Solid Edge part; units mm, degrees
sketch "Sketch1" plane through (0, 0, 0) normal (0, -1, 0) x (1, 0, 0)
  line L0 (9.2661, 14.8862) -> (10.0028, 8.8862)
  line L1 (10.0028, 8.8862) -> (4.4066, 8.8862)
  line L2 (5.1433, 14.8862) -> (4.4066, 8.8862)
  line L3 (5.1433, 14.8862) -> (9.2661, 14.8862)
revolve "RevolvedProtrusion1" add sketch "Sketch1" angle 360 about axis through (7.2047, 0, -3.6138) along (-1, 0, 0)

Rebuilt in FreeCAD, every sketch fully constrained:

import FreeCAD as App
import Part
import Sketcher
Q = App.Units.Quantity

doc = App.newDocument("Part")
body = doc.addObject("PartDesign::Body", "Body")

# Sketch on XZ plane
sketch1 = doc.addObject("Sketcher::SketchObject", "Sketch")
body.addObject(sketch1)
sketch1.AttachmentSupport = (doc.XZ_Plane, [""])
sketch1.MapMode = "FlatFace"
sketch1.addGeometry(Part.LineSegment(App.Vector(10, 8.9, 0), App.Vector(9.3, 14.9, 0)), False)
sketch1.addGeometry(Part.LineSegment(App.Vector(9.3, 14.9, 0), App.Vector(5.1, 14.9, 0)), False)
sketch1.addGeometry(Part.LineSegment(App.Vector(5.1, 14.9, 0), App.Vector(4.4, 8.9, 0)), False)
sketch1.addGeometry(Part.LineSegment(App.Vector(4.4, 8.9, 0), App.Vector(10, 8.9, 0)), False)
sketch1.addGeometry(Part.LineSegment(App.Vector(10, -3.6, 0), App.Vector(4.4, -3.6, 0)), True)  # axis
sketch1.addConstraint(Sketcher.Constraint("Coincident", 0, 2, 1, 1))
sketch1.addConstraint(Sketcher.Constraint("Coincident", 1, 2, 2, 1))
sketch1.addConstraint(Sketcher.Constraint("Coincident", 2, 2, 3, 1))
sketch1.addConstraint(Sketcher.Constraint("Coincident", 3, 2, 0, 1))
sketch1.addConstraint(Sketcher.Constraint("Horizontal", 1))
sketch1.addConstraint(Sketcher.Constraint("Horizontal", 3))
sketch1.addConstraint(Sketcher.Constraint("Horizontal", 4))
sketch1.addConstraint(Sketcher.Constraint("Vertical", 3, 2, 4, 1))
sketch1.addConstraint(Sketcher.Constraint("Vertical", 2, 2, 4, 2))
sketch1.addConstraint(Sketcher.Constraint("Equal", 0, 2))
sketch1.addConstraint(Sketcher.Constraint("Angle", 0, Q("97 deg")))
sketch1.addConstraint(Sketcher.Constraint("Distance", 0, Q("0.238 in")))
sketch1.addConstraint(Sketcher.Constraint("DistanceX", 1, 2, 1, 1, Q("4.1228 mm")))
sketch1.addConstraint(Sketcher.Constraint("DistanceX", -1, 1, 0, 2, Q("0.3648 in")))
sketch1.addConstraint(Sketcher.Constraint("DistanceY", -1, 1, 0, 2, Q("14.8862 mm")))
sketch1.addConstraint(Sketcher.Constraint("DistanceY", 4, 1, -1, 1, Q("3.6138 mm")))
revolution = doc.addObject("PartDesign::Revolution", "Revolution")
body.addObject(revolution)
revolution.Profile = sketch1
revolution.ReferenceAxis = (sketch1, ["Axis0"])
revolution.Angle = 360

doc.recompute()
